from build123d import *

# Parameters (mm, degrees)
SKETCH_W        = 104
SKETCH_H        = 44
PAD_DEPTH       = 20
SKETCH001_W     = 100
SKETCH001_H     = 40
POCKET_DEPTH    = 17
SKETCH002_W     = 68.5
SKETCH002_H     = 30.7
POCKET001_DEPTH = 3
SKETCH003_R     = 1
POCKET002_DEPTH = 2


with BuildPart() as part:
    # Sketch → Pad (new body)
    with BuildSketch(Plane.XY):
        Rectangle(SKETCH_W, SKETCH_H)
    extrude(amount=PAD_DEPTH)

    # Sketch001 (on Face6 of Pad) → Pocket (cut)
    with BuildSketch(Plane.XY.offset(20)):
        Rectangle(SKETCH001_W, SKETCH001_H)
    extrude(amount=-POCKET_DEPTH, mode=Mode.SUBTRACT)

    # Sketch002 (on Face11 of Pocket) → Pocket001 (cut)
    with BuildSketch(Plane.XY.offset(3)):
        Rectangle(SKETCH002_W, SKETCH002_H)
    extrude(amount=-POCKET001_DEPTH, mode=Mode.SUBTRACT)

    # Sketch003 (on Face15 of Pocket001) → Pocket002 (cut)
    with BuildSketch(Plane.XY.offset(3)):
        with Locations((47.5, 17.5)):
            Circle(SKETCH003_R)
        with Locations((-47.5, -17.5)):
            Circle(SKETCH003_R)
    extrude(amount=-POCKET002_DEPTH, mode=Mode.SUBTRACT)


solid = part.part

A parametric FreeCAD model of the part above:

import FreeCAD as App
import Part
import Sketcher

V = App.Vector


def add_polygon(sketch, points):
    """Adds a closed chain of lines whose ends are joined by coincident constraints."""
    first, n = sketch.GeometryCount, len(points)
    for a, b in zip(points, points[1:] + points[:1]):
        sketch.addGeometry(Part.LineSegment(App.Vector(*a, 0), App.Vector(*b, 0)), False)
    for i in range(n):
        sketch.addConstraint(Sketcher.Constraint("Coincident", first + i, 2, first + (i + 1) % n, 1))

doc = App.newDocument("Part")
body = doc.addObject("PartDesign::Body", "Body")

# Sketch on XY plane
sketch1 = doc.addObject("Sketcher::SketchObject", "Sketch")
body.addObject(sketch1)
sketch1.AttachmentSupport = (doc.XY_Plane, [""])
sketch1.MapMode = "FlatFace"
add_polygon(sketch1, [(-52, 22), (-52, -22), (52, -22), (52, 22)])  # lines 0-3
sketch1.addConstraint(Sketcher.Constraint("Vertical", 0))
sketch1.addConstraint(Sketcher.Constraint("Horizontal", 1))
sketch1.addConstraint(Sketcher.Constraint("Vertical", 2))
sketch1.addConstraint(Sketcher.Constraint("Horizontal", 3))
sketch1.addConstraint(Sketcher.Constraint("Symmetric", 0, 2, 2, 2, -1, 1))
sketch1.addConstraint(Sketcher.Constraint("DistanceX", 1, 1, 1, 2, 104.0))
sketch1.addConstraint(Sketcher.Constraint("DistanceY", 0, 2, 0, 1, 44.0))
pad1 = doc.addObject("PartDesign::Pad", "Pad")
body.addObject(pad1)
pad1.Profile = sketch1
pad1.Length = 20

# Sketch on XY plane
sketch2 = doc.addObject("Sketcher::SketchObject", "Sketch001")
body.addObject(sketch2)
sketch2.AttachmentSupport = (doc.XY_Plane, [""])
sketch2.MapMode = "FlatFace"
sketch2.AttachmentOffset = App.Placement(V(0, 0, 20), App.Rotation())
add_polygon(sketch2, [(-50, 20), (-50, -20), (50, -20), (50, 20)])  # lines 0-3
sketch2.addConstraint(Sketcher.Constraint("Vertical", 0))
sketch2.addConstraint(Sketcher.Constraint("Horizontal", 1))
sketch2.addConstraint(Sketcher.Constraint("Vertical", 2))
sketch2.addConstraint(Sketcher.Constraint("Horizontal", 3))
sketch2.addConstraint(Sketcher.Constraint("Symmetric", 0, 2, 2, 2, -1, 1))
sketch2.addConstraint(Sketcher.Constraint("DistanceX", 1, 1, 1, 2, 100.0))
sketch2.addConstraint(Sketcher.Constraint("DistanceY", 0, 2, 0, 1, 40.0))
pocket1 = doc.addObject("PartDesign::Pocket", "Pocket")
body.addObject(pocket1)
pocket1.Profile = sketch2
pocket1.Length = 17

# Sketch on XY plane
sketch3 = doc.addObject("Sketcher::SketchObject", "Sketch002")
body.addObject(sketch3)
sketch3.AttachmentSupport = (doc.XY_Plane, [""])
sketch3.MapMode = "FlatFace"
sketch3.AttachmentOffset = App.Placement(V(0, 0, 3), App.Rotation())
add_polygon(sketch3, [(-34.25, 15.35), (-34.25, -15.35), (34.25, -15.35), (34.25, 15.35)])  # lines 0-3
sketch3.addConstraint(Sketcher.Constraint("Vertical", 0))
sketch3.addConstraint(Sketcher.Constraint("Horizontal", 1))
sketch3.addConstraint(Sketcher.Constraint("Vertical", 2))
sketch3.addConstraint(Sketcher.Constraint("Horizontal", 3))
sketch3.addConstraint(Sketcher.Constraint("Symmetric", 0, 2, 2, 2, -1, 1))
sketch3.addConstraint(Sketcher.Constraint("DistanceX", 1, 1, 1, 2, 68.5))
sketch3.addConstraint(Sketcher.Constraint("DistanceY", 0, 2, 0, 1, 30.7))
pocket2 = doc.addObject("PartDesign::Pocket", "Pocket001")
body.addObject(pocket2)
pocket2.Profile = sketch3
pocket2.Length = 3

# Sketch on XY plane
sketch4 = doc.addObject("Sketcher::SketchObject", "Sketch003")
body.addObject(sketch4)
sketch4.AttachmentSupport = (doc.XY_Plane, [""])
sketch4.MapMode = "FlatFace"
sketch4.AttachmentOffset = App.Placement(V(0, 0, 3), App.Rotation())
sketch4.addGeometry(Part.Circle(V(47.5, 17.5, 0), V(0, 0, 1), 1), False)
sketch4.addGeometry(Part.Circle(V(-47.5, -17.5, 0), V(0, 0, 1), 1), False)
sketch4.addConstraint(Sketcher.Constraint("Equal", 0, 1))
sketch4.addConstraint(Sketcher.Constraint("Symmetric", 0, 3, 1, 3, -1, 1))
sketch4.addConstraint(Sketcher.Constraint("Diameter", 0, 2.0))
sketch4.addConstraint(Sketcher.Constraint("DistanceX", 1, 3, 0, 3, 95.0))
sketch4.addConstraint(Sketcher.Constraint("DistanceY", 1, 3, 0, 3, 35.0))
pocket3 = doc.addObject("PartDesign::Pocket", "Pocket002")
body.addObject(pocket3)
pocket3.Profile = sketch4
pocket3.Length = 2

doc.recompute()
